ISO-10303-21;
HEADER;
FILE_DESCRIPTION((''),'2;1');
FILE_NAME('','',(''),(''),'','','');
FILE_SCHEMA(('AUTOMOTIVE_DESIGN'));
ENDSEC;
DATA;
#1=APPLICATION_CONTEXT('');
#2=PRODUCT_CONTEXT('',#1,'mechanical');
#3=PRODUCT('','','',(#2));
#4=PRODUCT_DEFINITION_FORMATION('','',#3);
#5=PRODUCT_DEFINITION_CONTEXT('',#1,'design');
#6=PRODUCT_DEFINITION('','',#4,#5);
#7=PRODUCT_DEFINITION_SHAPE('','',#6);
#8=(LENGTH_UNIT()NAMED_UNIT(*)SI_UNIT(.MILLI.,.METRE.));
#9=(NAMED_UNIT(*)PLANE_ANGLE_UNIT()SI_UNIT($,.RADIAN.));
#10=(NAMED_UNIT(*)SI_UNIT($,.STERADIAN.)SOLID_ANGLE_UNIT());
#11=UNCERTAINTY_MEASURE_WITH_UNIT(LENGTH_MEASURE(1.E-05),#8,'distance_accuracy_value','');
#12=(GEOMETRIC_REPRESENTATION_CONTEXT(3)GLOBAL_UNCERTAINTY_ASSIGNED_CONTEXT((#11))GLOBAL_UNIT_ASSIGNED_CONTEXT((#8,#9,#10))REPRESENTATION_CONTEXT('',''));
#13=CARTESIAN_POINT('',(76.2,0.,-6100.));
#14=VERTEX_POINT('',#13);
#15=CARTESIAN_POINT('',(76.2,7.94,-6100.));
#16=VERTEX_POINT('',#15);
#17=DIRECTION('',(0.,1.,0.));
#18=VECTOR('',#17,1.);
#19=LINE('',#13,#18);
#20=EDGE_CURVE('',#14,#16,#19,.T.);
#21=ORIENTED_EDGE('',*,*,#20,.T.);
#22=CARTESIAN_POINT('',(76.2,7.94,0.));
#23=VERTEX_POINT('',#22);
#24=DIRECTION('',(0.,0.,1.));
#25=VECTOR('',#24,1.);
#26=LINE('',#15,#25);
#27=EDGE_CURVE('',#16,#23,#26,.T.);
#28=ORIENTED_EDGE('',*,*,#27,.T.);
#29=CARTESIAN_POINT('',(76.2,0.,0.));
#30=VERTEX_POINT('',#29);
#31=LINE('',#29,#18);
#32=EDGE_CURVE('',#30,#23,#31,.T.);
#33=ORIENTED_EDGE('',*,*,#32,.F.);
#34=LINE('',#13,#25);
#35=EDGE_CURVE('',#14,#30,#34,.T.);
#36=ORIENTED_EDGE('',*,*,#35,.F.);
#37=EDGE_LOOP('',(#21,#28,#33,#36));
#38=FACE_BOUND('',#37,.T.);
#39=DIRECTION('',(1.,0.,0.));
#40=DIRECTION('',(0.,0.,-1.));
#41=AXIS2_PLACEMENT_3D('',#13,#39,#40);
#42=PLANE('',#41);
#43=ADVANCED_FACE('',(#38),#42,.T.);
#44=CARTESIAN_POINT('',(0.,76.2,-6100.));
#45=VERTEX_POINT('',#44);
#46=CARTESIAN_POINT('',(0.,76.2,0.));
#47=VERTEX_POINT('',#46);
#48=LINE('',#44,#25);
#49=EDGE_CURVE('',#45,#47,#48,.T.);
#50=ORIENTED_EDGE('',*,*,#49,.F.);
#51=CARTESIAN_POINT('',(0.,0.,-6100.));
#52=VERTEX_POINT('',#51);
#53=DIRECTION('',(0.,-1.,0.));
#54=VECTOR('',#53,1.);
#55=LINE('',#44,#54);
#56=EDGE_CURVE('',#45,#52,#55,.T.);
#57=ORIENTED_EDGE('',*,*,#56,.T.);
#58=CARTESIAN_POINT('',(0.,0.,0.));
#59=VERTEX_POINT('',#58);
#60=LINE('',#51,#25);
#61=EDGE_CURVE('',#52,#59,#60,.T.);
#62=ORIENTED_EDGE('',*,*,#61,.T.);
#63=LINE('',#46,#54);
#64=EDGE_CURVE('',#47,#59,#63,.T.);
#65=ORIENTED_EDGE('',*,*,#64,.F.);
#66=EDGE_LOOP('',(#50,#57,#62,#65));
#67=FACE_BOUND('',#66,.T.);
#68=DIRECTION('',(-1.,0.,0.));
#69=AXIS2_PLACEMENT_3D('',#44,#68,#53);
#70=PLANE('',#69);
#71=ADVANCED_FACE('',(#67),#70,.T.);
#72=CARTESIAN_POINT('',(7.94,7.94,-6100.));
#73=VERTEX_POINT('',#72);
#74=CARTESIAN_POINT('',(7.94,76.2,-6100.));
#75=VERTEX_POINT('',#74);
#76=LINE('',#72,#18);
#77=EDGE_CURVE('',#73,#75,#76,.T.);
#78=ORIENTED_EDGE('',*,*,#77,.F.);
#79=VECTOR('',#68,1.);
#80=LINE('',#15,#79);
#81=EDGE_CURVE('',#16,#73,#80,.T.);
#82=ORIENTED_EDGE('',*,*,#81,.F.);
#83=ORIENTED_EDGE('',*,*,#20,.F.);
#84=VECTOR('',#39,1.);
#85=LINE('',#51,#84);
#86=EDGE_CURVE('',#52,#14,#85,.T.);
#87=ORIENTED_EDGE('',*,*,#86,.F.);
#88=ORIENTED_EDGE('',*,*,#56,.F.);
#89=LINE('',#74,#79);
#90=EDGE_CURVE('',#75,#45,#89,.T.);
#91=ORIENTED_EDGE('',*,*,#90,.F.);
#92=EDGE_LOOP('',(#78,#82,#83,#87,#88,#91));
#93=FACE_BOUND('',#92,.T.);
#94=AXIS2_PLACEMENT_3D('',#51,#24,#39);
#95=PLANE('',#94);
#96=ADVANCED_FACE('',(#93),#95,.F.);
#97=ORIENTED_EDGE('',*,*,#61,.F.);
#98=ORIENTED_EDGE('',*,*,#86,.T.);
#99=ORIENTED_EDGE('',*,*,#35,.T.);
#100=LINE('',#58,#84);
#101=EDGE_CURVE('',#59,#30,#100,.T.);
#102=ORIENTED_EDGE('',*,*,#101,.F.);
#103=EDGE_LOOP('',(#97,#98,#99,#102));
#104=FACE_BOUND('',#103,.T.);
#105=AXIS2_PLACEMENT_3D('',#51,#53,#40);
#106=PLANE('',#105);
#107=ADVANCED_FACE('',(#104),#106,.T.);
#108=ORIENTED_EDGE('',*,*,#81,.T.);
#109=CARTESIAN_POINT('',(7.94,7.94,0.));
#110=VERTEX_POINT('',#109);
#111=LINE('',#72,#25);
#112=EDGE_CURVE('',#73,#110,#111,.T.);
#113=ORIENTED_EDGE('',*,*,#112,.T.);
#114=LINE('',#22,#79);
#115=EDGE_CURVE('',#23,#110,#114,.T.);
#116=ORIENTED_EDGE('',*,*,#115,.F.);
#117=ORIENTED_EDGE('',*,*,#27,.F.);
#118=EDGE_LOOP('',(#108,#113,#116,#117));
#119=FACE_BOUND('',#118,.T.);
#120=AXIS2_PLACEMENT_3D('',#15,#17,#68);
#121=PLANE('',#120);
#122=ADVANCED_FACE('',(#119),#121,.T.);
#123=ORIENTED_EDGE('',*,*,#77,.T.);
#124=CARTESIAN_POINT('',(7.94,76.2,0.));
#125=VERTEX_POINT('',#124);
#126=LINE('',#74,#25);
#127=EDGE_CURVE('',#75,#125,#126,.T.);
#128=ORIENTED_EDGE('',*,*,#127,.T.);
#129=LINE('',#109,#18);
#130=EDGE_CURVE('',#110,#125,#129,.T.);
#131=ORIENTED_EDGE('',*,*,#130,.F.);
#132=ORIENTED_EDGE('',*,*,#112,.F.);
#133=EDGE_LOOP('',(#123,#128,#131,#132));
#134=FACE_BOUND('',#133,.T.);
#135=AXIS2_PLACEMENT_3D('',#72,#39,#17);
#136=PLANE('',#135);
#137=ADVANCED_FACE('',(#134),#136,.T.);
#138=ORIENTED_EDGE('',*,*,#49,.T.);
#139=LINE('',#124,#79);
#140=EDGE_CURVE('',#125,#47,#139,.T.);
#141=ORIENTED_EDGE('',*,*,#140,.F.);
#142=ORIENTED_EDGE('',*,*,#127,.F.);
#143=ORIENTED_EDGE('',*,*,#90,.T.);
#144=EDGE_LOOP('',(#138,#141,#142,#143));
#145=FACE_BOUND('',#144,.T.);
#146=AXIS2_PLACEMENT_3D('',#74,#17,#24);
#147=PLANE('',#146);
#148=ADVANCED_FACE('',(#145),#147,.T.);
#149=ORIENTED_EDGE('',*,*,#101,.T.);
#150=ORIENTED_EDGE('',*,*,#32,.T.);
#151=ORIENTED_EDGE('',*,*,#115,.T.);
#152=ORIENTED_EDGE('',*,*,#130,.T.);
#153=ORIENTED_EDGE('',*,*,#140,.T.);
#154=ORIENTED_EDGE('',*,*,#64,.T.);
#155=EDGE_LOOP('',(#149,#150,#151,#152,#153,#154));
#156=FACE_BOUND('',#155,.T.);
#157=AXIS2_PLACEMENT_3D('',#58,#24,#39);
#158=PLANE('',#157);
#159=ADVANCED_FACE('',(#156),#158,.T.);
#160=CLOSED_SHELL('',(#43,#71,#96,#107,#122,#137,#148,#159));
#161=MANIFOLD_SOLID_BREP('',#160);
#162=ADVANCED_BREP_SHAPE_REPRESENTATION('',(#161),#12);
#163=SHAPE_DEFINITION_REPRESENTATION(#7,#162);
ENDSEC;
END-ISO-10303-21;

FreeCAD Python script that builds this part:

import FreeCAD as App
import Part
import Sketcher


def add_polygon(sketch, points):
    """Adds a closed chain of lines whose ends are joined by coincident constraints."""
    first, n = sketch.GeometryCount, len(points)
    for a, b in zip(points, points[1:] + points[:1]):
        sketch.addGeometry(Part.LineSegment(App.Vector(*a, 0), App.Vector(*b, 0)), False)
    for i in range(n):
        sketch.addConstraint(Sketcher.Constraint("Coincident", first + i, 2, first + (i + 1) % n, 1))

doc = App.newDocument("Part")
body = doc.addObject("PartDesign::Body", "Body")

# Sketch on XY plane
sketch1 = body.newObject("Sketcher::SketchObject", "Sketch")
sketch1.AttachmentSupport = (doc.getObject("XY_Plane"), [""])
sketch1.MapMode = "FlatFace"
add_polygon(sketch1, [(0, 76), (0, 0), (76, 0), (76, 8), (8, 8), (8, 76)])  # lines 0-5
sketch1.addConstraint(Sketcher.Constraint("Vertical", 0))
sketch1.addConstraint(Sketcher.Constraint("Horizontal", 1))
sketch1.addConstraint(Sketcher.Constraint("Vertical", 2))
sketch1.addConstraint(Sketcher.Constraint("Horizontal", 3))
sketch1.addConstraint(Sketcher.Constraint("Vertical", 4))
sketch1.addConstraint(Sketcher.Constraint("Horizontal", 5))
sketch1.addConstraint(Sketcher.Constraint("Coincident", 0, 2, -1, 1))
sketch1.addConstraint(Sketcher.Constraint("Equal", 1, 0))
sketch1.addConstraint(Sketcher.Constraint("Equal", 5, 2))
sketch1.addConstraint(Sketcher.Constraint("DistanceX", 1, 1, 1, 2, 76.2))
sketch1.addConstraint(Sketcher.Constraint("DistanceX", 3, 2, 3, 1, 68.26))
pad1 = body.newObject("PartDesign::Pad", "Pad")
pad1.Profile = sketch1
pad1.Length = 6100
pad1.Reversed = True

doc.recompute()
